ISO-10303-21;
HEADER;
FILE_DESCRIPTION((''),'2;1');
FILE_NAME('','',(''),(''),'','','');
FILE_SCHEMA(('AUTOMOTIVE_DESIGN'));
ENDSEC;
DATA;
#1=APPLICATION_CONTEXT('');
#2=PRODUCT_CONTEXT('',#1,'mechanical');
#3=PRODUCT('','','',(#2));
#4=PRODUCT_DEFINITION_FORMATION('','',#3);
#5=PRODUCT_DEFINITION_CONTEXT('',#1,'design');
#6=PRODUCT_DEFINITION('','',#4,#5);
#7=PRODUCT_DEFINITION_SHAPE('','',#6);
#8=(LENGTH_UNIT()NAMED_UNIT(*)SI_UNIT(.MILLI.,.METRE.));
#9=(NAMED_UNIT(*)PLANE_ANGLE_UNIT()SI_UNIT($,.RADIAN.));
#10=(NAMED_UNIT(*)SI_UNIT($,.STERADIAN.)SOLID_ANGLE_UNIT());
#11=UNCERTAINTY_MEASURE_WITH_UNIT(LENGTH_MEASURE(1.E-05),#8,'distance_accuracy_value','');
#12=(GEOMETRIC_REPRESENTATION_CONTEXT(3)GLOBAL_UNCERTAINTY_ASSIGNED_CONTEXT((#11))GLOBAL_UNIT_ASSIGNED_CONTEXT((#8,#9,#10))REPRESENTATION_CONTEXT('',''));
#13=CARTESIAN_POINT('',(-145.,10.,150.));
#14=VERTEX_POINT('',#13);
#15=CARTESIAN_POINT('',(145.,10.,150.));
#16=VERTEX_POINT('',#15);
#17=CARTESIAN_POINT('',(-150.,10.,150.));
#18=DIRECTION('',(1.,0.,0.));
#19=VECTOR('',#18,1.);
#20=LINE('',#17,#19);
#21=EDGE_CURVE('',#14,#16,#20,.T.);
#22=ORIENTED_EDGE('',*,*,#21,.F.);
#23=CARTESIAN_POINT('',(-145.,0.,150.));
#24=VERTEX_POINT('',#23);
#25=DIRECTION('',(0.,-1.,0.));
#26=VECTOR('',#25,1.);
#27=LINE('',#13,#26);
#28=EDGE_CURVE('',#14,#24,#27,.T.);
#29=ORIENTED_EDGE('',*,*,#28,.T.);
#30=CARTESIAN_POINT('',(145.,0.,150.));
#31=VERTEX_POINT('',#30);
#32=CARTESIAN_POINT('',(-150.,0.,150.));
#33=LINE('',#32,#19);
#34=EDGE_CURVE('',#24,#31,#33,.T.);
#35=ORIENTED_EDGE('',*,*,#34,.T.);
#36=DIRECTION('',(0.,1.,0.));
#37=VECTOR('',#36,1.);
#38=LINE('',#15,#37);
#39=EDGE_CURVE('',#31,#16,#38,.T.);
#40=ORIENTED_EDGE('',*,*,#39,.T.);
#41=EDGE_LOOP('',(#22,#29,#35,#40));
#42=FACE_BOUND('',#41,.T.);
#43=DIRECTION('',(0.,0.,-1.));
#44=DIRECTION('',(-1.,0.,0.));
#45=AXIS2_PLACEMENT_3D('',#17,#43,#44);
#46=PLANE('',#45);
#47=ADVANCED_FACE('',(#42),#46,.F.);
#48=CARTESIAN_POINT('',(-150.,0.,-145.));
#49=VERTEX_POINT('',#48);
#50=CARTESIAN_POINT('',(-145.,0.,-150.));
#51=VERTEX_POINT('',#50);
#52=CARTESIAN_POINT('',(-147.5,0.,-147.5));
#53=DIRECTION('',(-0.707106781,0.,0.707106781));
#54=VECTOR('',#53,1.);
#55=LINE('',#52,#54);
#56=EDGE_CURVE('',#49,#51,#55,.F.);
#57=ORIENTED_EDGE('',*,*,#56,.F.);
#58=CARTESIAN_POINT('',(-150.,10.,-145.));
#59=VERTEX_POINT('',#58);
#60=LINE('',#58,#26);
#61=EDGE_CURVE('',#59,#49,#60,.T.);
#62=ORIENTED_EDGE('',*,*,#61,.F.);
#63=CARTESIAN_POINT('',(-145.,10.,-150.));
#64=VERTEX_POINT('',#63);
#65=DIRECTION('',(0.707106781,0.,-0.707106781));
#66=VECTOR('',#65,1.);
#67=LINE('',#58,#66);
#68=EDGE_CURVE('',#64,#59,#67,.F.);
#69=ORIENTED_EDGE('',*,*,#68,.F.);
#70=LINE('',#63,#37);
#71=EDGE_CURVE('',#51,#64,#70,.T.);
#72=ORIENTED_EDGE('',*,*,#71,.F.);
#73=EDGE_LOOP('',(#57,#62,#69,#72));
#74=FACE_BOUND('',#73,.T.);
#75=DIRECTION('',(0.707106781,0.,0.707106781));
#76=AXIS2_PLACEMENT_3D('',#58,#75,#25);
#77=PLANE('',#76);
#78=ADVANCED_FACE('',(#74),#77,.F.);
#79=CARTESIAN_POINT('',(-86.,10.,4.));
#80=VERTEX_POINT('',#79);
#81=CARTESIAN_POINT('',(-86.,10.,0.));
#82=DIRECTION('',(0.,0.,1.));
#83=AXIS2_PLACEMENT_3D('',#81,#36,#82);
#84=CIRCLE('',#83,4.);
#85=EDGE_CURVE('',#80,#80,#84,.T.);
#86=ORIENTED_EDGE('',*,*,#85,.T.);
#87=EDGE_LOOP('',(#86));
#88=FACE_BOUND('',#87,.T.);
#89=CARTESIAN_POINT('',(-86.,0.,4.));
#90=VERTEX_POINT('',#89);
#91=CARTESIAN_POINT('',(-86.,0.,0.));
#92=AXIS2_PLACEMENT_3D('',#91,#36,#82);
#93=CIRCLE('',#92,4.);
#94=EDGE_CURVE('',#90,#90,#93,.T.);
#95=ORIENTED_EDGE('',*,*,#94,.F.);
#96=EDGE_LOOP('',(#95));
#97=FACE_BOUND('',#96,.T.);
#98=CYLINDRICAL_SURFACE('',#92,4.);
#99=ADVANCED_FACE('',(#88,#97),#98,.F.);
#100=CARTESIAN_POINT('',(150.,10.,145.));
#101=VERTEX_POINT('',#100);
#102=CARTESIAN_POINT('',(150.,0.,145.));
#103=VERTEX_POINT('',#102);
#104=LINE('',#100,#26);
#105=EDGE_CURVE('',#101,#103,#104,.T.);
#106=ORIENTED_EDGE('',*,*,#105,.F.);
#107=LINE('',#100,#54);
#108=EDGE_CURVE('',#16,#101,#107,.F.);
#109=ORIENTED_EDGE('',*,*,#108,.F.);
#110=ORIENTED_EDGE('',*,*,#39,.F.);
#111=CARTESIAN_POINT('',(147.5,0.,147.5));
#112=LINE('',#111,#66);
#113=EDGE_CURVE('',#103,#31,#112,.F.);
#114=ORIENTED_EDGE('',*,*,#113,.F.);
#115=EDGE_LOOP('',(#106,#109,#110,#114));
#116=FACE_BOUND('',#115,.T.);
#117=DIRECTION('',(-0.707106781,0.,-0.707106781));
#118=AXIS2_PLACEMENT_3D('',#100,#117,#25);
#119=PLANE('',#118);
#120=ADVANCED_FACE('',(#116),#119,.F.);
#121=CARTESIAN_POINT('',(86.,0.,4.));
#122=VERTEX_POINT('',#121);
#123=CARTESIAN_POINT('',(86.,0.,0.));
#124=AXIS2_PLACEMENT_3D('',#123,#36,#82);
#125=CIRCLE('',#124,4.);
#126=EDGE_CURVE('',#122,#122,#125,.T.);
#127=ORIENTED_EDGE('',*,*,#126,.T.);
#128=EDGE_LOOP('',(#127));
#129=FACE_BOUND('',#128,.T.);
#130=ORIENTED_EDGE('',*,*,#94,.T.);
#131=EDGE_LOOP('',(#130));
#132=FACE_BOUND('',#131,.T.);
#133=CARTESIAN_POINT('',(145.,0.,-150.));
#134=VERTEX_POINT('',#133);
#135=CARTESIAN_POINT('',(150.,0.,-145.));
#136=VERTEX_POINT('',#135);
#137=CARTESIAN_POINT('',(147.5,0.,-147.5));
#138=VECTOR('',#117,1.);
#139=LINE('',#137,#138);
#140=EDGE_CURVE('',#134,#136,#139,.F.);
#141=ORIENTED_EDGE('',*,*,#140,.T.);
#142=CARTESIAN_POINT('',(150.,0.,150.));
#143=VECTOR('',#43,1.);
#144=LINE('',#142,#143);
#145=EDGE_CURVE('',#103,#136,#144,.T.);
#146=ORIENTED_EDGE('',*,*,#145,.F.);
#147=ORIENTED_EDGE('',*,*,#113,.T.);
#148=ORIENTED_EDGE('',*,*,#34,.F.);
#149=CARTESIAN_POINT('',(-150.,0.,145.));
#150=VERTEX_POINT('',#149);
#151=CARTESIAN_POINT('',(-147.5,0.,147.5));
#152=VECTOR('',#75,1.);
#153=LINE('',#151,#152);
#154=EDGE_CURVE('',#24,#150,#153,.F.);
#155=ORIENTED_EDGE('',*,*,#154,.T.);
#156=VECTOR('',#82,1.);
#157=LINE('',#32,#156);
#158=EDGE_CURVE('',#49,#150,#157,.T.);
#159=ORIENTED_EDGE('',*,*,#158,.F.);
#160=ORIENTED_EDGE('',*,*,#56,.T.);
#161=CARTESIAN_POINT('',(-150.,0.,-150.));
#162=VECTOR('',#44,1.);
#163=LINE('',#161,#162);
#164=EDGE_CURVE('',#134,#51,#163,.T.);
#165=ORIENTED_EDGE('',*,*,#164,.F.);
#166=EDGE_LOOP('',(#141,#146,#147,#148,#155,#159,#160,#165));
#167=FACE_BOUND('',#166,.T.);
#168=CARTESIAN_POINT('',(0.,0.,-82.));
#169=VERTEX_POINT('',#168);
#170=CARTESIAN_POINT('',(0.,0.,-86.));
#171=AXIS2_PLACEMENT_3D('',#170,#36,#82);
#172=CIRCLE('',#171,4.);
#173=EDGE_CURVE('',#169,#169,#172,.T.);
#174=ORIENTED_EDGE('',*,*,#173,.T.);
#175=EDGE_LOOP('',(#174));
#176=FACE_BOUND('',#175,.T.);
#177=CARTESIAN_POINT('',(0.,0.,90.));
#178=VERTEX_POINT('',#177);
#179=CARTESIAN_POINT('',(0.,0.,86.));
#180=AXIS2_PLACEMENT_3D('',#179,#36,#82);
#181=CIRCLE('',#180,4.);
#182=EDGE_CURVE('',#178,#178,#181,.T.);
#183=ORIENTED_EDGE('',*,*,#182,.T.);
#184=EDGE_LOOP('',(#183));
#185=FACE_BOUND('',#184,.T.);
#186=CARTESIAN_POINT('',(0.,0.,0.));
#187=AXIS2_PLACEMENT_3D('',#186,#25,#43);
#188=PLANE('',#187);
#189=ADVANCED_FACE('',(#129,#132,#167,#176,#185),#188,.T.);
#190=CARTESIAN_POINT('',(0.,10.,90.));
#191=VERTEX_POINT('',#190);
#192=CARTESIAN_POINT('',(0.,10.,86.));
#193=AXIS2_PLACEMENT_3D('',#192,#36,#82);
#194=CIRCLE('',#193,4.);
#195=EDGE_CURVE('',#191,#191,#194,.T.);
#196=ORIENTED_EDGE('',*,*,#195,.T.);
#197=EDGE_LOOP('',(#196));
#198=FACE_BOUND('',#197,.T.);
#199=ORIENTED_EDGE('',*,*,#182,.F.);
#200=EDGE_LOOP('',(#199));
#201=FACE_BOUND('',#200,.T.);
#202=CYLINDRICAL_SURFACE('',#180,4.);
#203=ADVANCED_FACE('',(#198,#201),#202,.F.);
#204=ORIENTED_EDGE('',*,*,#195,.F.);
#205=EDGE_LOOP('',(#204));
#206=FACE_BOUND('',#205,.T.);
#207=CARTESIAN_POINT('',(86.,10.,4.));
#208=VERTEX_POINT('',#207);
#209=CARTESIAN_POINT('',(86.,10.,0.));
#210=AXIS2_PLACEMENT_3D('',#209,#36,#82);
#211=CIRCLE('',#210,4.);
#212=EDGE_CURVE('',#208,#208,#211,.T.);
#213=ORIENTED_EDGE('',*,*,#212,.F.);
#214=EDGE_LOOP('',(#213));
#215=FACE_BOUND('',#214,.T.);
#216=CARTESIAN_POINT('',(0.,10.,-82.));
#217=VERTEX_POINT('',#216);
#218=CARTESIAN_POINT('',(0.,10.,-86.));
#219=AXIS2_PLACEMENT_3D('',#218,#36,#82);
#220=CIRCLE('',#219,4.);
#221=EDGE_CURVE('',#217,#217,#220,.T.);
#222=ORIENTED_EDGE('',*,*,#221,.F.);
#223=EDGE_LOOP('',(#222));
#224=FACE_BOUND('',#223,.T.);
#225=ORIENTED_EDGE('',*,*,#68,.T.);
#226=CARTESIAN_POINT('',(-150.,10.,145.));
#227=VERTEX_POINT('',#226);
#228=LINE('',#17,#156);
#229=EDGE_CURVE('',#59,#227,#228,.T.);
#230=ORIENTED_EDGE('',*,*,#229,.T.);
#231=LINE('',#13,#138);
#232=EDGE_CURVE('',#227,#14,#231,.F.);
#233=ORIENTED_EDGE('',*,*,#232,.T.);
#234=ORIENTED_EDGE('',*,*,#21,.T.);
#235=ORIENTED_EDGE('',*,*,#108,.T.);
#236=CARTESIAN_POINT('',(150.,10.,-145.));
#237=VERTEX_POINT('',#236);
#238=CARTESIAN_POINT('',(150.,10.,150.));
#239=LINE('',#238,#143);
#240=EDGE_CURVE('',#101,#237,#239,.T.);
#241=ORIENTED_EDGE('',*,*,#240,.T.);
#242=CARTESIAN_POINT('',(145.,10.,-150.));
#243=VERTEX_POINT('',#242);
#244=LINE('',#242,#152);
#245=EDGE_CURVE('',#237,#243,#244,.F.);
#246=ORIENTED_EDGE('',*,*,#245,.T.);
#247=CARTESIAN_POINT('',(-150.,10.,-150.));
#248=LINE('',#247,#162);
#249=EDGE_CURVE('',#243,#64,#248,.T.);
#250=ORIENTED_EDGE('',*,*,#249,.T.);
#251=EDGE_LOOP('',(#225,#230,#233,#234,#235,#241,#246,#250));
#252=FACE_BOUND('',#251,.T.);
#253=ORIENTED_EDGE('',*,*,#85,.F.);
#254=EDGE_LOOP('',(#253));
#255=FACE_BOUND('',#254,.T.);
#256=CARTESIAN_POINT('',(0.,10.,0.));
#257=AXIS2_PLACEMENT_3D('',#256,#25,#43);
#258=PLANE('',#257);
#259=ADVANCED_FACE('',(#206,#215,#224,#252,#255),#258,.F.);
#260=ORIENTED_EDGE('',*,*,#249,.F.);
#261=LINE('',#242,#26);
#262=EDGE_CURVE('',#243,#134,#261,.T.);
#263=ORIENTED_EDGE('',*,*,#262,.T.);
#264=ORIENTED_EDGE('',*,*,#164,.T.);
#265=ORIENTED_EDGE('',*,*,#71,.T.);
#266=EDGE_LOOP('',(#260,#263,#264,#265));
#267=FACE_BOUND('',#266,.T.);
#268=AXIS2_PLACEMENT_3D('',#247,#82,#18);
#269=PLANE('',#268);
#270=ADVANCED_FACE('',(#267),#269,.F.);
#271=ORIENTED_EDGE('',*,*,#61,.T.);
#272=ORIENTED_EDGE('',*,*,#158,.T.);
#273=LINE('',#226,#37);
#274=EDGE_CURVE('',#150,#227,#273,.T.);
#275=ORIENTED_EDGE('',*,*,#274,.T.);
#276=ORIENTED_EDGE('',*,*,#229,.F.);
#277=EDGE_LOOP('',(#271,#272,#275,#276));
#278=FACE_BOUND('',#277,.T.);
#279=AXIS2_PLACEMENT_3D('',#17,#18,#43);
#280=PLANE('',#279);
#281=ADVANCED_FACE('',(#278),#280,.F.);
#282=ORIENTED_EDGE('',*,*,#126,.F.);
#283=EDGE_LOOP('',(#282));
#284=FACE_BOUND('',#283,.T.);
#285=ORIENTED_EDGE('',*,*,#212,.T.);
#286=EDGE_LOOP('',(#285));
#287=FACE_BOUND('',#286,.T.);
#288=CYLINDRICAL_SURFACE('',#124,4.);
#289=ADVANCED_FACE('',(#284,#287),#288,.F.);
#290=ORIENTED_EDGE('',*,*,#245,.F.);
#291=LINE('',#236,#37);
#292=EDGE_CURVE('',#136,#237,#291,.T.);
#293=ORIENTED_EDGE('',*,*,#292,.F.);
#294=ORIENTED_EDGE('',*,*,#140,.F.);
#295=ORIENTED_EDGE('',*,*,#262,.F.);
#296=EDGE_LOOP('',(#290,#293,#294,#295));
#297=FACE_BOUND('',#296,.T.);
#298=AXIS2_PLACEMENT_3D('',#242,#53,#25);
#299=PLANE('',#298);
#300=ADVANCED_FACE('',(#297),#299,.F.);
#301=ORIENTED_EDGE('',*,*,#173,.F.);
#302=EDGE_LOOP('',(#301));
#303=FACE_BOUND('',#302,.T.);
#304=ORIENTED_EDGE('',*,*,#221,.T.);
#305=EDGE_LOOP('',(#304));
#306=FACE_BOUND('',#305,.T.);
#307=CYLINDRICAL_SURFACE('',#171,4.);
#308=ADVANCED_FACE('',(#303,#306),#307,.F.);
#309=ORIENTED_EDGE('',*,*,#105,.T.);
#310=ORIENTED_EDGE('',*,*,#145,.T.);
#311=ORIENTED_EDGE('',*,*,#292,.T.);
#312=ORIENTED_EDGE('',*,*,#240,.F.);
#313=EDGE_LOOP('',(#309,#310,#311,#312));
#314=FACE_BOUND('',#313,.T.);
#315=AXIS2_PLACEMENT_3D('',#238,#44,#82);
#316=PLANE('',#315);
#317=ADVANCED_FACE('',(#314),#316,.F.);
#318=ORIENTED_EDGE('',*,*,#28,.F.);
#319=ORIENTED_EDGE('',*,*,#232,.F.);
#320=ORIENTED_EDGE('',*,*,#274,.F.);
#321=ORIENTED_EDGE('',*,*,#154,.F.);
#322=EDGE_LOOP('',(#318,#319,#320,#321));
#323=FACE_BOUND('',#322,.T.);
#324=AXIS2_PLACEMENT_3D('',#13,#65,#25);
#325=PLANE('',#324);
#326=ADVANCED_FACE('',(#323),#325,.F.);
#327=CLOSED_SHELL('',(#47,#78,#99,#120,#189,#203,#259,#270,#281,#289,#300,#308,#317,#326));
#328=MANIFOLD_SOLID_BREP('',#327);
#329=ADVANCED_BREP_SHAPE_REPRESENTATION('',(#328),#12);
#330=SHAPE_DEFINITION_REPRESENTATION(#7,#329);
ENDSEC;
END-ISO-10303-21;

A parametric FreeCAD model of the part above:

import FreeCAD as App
import Part
import Sketcher
Q = App.Units.Quantity


def edges_at(feature, points):
    """Names of the edges that pass closest to the given points."""
    edges = feature.Shape.Edges
    near = lambda p: min(range(len(edges)), key=lambda i: edges[i].distToShape(Part.Vertex(*p))[0])
    return sorted({f"Edge{near(p) + 1}" for p in points})

doc = App.newDocument("Part")
body = doc.addObject("PartDesign::Body", "Body")

# Sketch on XZ plane
sketch1 = body.newObject("Sketcher::SketchObject", "Sketch")
sketch1.AttachmentSupport = (doc.getObject("XZ_Plane"), [""])
sketch1.MapMode = "FlatFace"
sketch1.addGeometry(Part.LineSegment(App.Vector(-150, -150, 0), App.Vector(-150, 150, 0)), False)
sketch1.addGeometry(Part.LineSegment(App.Vector(-150, 150, 0), App.Vector(150, 150, 0)), False)
sketch1.addGeometry(Part.LineSegment(App.Vector(150, 150, 0), App.Vector(150, -150, 0)), False)
sketch1.addGeometry(Part.LineSegment(App.Vector(150, -150, 0), App.Vector(-150, -150, 0)), False)
sketch1.addConstraint(Sketcher.Constraint("Coincident", 0, 2, 1, 1))
sketch1.addConstraint(Sketcher.Constraint("Coincident", 1, 2, 2, 1))
sketch1.addConstraint(Sketcher.Constraint("Coincident", 2, 2, 3, 1))
sketch1.addConstraint(Sketcher.Constraint("Coincident", 3, 2, 0, 1))
sketch1.addConstraint(Sketcher.Constraint("Vertical", 0))
sketch1.addConstraint(Sketcher.Constraint("Horizontal", 1))
sketch1.addConstraint(Sketcher.Constraint("Vertical", 2))
sketch1.addConstraint(Sketcher.Constraint("Horizontal", 3))
sketch1.addConstraint(Sketcher.Constraint("Symmetric", 0, 2, 2, 2, -1, 1))
sketch1.addConstraint(Sketcher.Constraint("Equal", 3, 0))
sketch1.addConstraint(Sketcher.Constraint("DistanceX", 1, 1, 1, 2, Q("300 mm")))
pad1 = body.newObject("PartDesign::Pad", "Pad")
pad1.Profile = sketch1
pad1.Length = 10
pad1.Reversed = True
doc.recompute()

chamfer = body.newObject("PartDesign::Chamfer", "Chamfer")
chamfer.Base = (pad1, edges_at(pad1, [
    (150, 5, 150),
    (-150, 5, 150),
    (-150, 5, -150),
    (150, 5, -150),
]))
chamfer.Size = 5

# Sketch on XZ plane
sketch2 = body.newObject("Sketcher::SketchObject", "Sketch001")
sketch2.AttachmentSupport = (doc.getObject("XZ_Plane"), [""])
sketch2.MapMode = "FlatFace"
sketch2.AttachmentOffset = App.Placement(App.Vector(0, 0, -10), App.Rotation())
sketch2.addGeometry(Part.Circle(App.Vector(0, 86, 0), App.Vector(0, 0, 1), 4), False)
sketch2.addGeometry(Part.Circle(App.Vector(-86, 0, 0), App.Vector(0, 0, 1), 4), False)
sketch2.addGeometry(Part.Circle(App.Vector(0, -86, 0), App.Vector(0, 0, 1), 4), False)
sketch2.addGeometry(Part.Circle(App.Vector(86, 0, 0), App.Vector(0, 0, 1), 4), False)
sketch2.addConstraint(Sketcher.Constraint("Equal", 0, 1))
sketch2.addConstraint(Sketcher.Constraint("Equal", 1, 2))
sketch2.addConstraint(Sketcher.Constraint("Equal", 2, 3))
sketch2.addConstraint(Sketcher.Constraint("Symmetric", 0, 3, 2, 3, -1, 1))
sketch2.addConstraint(Sketcher.Constraint("Symmetric", 1, 3, 3, 3, -1, 1))
sketch2.addConstraint(Sketcher.Constraint("PointOnObject", 0, 3, -2))
sketch2.addConstraint(Sketcher.Constraint("PointOnObject", 1, 3, -1))
sketch2.addConstraint(Sketcher.Constraint("Diameter", 0, Q("8 mm")))
sketch2.addConstraint(Sketcher.Constraint("DistanceY", -1, 1, 0, 3, Q("86 mm")))
sketch2.addConstraint(Sketcher.Constraint("DistanceX", 1, 3, -1, 1, Q("86 mm")))
pocket1 = body.newObject("PartDesign::Pocket", "Pocket")
pocket1.Profile = sketch2
pocket1.Length = 10
pocket1.Reversed = True

doc.recompute()
